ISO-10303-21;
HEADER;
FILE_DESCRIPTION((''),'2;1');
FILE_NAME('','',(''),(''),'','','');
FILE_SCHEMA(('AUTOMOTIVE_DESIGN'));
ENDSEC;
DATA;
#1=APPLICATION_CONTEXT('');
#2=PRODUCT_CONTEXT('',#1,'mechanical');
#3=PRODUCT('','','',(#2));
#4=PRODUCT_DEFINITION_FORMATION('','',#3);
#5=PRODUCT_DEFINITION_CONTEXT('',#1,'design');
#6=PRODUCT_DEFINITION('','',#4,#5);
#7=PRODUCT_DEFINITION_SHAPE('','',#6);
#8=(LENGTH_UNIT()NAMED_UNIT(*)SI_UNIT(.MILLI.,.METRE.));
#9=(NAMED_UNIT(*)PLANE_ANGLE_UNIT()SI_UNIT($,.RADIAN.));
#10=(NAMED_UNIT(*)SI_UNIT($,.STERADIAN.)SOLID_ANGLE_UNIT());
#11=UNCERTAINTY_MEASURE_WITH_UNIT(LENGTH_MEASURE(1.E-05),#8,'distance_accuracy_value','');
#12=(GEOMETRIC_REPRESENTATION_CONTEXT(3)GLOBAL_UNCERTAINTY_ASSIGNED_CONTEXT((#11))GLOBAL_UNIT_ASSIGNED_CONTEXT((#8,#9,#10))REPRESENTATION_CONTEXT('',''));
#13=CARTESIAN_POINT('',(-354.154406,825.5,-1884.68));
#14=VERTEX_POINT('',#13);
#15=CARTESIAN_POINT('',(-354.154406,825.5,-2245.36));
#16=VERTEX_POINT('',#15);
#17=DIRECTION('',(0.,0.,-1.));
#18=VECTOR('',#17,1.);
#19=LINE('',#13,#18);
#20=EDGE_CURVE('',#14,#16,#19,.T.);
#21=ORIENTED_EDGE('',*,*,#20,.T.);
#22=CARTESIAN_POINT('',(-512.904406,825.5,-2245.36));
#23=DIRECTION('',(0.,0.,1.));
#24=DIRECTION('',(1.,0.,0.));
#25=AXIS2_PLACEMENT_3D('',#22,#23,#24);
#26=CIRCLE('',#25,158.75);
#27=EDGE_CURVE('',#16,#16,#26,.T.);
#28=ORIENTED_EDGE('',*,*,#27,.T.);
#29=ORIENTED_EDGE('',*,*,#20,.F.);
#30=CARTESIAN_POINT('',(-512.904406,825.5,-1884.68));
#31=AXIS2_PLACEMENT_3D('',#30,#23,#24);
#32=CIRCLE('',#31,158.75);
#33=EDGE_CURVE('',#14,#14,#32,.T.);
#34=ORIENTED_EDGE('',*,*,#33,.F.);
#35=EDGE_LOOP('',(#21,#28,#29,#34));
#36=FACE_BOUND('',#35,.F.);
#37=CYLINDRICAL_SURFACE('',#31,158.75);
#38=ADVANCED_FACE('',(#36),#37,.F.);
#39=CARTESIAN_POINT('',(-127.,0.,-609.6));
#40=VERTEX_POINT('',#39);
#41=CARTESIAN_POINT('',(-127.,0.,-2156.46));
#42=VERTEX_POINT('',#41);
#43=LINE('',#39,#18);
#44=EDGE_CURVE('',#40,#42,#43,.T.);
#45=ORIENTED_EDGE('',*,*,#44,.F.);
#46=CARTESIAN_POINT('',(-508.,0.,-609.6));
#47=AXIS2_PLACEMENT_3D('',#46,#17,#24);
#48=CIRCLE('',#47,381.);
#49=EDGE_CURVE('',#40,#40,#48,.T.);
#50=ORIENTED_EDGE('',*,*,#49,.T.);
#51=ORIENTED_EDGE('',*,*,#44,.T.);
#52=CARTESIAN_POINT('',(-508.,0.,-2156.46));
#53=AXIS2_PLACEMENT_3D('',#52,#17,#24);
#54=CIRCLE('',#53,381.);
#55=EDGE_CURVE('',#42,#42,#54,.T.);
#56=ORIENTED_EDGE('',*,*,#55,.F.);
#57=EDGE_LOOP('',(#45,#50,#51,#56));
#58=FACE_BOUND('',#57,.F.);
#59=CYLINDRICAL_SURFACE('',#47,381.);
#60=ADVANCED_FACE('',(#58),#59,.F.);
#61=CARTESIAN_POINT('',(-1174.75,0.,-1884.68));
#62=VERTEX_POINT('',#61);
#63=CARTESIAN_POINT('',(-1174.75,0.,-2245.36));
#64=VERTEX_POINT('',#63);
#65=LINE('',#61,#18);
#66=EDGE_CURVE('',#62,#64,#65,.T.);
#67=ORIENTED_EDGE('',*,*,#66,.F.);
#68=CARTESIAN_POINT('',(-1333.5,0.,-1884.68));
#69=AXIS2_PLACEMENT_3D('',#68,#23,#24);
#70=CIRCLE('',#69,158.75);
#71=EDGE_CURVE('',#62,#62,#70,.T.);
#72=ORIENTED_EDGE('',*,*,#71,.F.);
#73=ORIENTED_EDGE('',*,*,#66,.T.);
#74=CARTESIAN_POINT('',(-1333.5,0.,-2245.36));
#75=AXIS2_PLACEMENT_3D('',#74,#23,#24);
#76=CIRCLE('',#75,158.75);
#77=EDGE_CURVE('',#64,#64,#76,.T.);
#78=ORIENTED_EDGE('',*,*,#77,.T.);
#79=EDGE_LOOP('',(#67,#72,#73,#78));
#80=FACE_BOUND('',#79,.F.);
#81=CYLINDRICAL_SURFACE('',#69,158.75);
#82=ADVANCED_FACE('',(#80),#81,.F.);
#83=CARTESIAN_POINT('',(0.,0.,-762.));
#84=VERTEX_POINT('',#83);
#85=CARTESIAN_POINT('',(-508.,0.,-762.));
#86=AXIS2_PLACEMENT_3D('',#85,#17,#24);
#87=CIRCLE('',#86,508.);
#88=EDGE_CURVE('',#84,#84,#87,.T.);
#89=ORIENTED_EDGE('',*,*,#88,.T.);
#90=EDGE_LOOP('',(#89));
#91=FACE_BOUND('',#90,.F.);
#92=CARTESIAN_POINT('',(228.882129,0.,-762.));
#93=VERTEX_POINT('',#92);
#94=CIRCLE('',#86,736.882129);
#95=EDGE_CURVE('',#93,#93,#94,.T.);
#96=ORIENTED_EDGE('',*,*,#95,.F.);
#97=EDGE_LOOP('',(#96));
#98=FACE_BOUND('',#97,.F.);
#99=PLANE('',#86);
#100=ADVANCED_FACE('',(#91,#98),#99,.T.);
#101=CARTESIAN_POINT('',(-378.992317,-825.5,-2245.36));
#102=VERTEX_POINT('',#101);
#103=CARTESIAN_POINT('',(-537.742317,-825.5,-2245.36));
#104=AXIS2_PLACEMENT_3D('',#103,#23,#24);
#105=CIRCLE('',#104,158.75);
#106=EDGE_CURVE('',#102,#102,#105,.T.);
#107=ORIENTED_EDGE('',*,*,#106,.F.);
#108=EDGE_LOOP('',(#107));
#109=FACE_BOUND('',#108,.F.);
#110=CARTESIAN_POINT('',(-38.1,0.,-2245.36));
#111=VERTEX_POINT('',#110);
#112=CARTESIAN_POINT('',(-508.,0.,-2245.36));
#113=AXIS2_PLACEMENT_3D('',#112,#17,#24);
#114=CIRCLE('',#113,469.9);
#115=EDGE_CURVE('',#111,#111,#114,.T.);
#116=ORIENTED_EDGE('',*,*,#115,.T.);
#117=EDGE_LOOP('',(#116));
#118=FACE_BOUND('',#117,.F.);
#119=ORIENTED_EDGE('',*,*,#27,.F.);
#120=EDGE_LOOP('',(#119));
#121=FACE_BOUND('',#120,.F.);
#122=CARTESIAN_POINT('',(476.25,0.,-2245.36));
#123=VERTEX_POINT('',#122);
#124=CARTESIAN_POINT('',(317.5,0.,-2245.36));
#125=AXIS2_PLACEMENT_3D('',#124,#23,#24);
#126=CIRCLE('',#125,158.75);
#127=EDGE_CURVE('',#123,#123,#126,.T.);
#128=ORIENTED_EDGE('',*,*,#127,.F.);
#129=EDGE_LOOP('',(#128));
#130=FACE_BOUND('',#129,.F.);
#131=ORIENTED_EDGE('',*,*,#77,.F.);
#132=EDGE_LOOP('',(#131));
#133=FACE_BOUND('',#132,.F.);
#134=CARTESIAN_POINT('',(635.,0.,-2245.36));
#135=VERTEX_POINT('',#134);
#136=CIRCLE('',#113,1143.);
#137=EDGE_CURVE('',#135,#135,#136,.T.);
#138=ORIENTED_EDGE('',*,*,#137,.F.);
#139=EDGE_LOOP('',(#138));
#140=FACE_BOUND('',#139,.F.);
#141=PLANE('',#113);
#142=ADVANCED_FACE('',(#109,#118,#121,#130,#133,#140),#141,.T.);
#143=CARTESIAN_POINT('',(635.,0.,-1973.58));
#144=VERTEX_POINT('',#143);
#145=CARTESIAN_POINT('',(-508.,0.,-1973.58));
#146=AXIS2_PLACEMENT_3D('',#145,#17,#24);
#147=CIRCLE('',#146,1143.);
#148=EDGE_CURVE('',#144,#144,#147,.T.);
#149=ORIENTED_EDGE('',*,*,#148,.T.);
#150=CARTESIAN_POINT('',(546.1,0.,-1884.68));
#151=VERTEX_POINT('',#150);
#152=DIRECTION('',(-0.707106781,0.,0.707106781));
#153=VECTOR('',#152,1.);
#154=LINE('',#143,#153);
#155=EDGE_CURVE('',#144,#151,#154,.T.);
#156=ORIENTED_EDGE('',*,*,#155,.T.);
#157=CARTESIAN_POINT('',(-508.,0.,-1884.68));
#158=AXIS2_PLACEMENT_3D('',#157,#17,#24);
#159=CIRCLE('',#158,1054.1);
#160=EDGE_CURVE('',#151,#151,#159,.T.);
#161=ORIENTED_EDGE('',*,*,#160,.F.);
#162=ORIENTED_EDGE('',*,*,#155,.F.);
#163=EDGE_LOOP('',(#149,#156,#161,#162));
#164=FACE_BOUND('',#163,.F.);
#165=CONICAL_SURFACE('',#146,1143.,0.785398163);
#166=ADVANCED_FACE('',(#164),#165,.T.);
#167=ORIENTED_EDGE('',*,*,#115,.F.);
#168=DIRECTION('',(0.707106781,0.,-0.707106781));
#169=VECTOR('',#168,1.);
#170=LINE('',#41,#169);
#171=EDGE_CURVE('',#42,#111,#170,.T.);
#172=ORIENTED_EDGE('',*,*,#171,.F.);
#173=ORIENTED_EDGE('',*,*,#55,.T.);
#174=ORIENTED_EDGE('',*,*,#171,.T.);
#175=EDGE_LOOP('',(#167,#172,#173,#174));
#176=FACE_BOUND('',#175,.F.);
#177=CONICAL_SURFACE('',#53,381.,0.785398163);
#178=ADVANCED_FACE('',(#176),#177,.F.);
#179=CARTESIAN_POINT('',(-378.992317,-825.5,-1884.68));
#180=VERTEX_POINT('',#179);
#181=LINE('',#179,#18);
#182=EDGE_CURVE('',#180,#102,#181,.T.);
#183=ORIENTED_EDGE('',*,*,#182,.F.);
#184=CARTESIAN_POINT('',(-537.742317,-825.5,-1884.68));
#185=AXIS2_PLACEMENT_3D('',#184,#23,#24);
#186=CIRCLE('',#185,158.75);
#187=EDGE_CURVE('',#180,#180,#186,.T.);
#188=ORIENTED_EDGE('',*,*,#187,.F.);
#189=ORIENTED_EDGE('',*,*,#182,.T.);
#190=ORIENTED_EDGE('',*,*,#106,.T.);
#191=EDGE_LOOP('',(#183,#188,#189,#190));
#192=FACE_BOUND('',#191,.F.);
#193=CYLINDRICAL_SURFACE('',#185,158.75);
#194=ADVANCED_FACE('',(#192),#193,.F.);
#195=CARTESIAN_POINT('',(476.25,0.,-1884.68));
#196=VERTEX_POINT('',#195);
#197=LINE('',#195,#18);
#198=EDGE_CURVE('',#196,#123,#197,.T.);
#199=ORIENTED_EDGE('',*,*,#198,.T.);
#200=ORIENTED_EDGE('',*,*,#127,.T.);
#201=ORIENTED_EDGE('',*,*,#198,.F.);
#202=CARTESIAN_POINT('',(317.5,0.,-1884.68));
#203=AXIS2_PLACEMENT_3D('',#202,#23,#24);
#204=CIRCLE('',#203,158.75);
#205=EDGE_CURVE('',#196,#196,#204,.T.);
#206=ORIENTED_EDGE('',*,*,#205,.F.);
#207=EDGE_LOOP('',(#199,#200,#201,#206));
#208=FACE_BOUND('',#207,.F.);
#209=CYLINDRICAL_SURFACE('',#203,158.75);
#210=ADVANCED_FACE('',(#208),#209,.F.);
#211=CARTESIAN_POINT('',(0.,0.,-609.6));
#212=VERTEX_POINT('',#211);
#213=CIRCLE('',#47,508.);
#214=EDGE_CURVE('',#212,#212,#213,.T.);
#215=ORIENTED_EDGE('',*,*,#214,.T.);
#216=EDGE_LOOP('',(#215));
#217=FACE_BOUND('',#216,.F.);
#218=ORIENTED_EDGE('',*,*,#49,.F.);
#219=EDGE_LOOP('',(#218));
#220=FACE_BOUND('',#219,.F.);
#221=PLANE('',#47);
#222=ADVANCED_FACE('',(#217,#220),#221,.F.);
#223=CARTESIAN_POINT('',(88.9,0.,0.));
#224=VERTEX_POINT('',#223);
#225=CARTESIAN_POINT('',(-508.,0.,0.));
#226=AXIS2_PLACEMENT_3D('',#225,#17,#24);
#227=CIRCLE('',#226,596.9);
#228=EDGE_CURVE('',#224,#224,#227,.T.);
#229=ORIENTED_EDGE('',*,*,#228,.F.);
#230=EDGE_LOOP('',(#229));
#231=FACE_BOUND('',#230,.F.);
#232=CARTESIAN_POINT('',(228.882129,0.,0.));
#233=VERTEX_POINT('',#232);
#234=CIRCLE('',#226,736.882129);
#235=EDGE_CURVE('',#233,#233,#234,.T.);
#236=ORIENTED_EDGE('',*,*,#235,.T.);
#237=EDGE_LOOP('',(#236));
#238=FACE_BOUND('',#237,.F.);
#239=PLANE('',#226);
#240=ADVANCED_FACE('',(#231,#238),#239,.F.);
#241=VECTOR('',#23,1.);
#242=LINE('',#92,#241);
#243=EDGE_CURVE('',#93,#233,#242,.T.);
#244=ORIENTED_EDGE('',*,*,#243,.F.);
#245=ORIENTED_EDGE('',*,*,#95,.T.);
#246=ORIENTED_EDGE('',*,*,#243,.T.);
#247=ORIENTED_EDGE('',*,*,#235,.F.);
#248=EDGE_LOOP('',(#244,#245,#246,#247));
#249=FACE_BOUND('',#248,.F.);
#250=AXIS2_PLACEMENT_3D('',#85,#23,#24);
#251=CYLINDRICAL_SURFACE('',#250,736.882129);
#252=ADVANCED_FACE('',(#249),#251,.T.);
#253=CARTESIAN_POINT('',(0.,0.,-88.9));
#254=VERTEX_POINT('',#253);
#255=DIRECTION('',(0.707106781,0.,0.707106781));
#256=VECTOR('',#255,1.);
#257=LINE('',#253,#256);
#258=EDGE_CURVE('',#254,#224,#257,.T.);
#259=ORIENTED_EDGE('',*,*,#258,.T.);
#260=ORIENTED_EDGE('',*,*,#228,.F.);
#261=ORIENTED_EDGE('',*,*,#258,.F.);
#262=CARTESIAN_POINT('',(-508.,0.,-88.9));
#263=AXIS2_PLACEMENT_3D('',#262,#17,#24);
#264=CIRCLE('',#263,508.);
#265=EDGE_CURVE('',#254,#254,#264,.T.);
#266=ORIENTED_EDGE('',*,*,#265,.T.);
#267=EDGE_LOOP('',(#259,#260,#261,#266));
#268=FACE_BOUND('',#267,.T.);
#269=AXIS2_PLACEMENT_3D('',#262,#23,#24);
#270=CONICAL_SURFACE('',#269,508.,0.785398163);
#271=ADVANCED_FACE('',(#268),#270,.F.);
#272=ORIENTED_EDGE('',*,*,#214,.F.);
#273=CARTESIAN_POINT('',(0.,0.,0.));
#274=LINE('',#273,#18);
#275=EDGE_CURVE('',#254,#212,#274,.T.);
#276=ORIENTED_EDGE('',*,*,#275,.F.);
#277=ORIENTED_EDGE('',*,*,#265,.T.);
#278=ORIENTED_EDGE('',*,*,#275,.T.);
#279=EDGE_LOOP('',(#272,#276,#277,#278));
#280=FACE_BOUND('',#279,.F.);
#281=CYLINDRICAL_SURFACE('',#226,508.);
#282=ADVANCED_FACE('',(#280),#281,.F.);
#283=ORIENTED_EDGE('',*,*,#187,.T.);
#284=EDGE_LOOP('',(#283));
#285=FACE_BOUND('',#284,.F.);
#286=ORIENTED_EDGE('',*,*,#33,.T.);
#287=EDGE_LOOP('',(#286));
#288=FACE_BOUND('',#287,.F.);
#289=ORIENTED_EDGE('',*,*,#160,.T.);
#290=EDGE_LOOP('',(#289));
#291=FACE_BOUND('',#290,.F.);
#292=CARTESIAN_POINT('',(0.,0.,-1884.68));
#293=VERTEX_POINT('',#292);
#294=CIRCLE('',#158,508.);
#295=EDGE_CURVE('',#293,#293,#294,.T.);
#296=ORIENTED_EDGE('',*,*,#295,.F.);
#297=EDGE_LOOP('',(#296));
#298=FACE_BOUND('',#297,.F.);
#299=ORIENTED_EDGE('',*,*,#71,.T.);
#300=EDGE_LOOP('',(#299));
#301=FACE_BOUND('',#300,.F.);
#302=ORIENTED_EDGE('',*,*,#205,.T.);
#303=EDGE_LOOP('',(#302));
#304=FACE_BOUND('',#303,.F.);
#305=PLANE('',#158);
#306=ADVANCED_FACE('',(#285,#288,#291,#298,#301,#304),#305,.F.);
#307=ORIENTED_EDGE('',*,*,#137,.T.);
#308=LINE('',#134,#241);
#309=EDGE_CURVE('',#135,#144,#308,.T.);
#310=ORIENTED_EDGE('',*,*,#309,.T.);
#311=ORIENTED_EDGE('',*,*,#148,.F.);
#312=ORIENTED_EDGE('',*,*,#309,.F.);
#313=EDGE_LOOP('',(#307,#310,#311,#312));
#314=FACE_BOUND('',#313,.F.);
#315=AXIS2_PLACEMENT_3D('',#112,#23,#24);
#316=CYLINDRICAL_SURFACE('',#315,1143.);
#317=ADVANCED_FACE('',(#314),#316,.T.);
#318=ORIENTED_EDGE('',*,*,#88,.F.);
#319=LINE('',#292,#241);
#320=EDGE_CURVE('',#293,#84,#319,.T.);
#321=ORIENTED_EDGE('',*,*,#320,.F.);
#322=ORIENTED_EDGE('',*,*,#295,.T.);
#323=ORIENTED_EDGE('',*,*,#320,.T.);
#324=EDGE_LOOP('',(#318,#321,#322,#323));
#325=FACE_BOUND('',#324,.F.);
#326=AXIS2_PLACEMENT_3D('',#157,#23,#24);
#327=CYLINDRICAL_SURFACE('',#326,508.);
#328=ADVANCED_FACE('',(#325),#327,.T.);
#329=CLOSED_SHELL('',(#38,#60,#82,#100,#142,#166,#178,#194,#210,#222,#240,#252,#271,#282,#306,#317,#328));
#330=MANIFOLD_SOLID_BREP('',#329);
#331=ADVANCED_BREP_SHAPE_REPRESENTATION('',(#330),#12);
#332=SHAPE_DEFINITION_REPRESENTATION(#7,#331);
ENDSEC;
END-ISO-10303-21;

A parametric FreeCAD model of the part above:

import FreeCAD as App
import Part
import Sketcher
from FreeCAD import Vector
Q = App.Units.Quantity


def edges_at(feature, points):
    """Names of the edges that pass closest to the given points."""
    edges = feature.Shape.Edges
    near = lambda p: min(range(len(edges)), key=lambda i: edges[i].distToShape(Part.Vertex(*p))[0])
    return sorted({f"Edge{near(p) + 1}" for p in points})


def add_polygon(sketch, points):
    """Adds a closed chain of lines whose ends are joined by coincident constraints."""
    first, n = sketch.GeometryCount, len(points)
    for a, b in zip(points, points[1:] + points[:1]):
        sketch.addGeometry(Part.LineSegment(App.Vector(*a, 0), App.Vector(*b, 0)), False)
    for i in range(n):
        sketch.addConstraint(Sketcher.Constraint("Coincident", first + i, 2, first + (i + 1) % n, 1))

doc = App.newDocument("Part")
body = doc.addObject("PartDesign::Body", "Body")

# Sketch on XZ plane
sketch1 = body.newObject("Sketcher::SketchObject", "Sketch")
sketch1.AttachmentSupport = (doc.getObject("XZ_Plane"), [""])
sketch1.MapMode = "FlatFace"
add_polygon(sketch1, [(229, 0), (0, 0), (0, -610), (-127, -610), (-127, -2245), (635, -2245), (635, -1885), (0, -1885), (0, -762), (229, -762)])  # lines 0-9
sketch1.addGeometry(Part.LineSegment(Vector(-508, 0, 0), Vector(-508, -2245, 0)), True)  # axis
sketch1.addConstraint(Sketcher.Constraint("Horizontal", 0))
sketch1.addConstraint(Sketcher.Constraint("Vertical", 1))
sketch1.addConstraint(Sketcher.Constraint("Horizontal", 2))
sketch1.addConstraint(Sketcher.Constraint("Vertical", 3))
sketch1.addConstraint(Sketcher.Constraint("Horizontal", 4))
sketch1.addConstraint(Sketcher.Constraint("Vertical", 5))
sketch1.addConstraint(Sketcher.Constraint("Horizontal", 6))
sketch1.addConstraint(Sketcher.Constraint("Vertical", 7))
sketch1.addConstraint(Sketcher.Constraint("Horizontal", 8))
sketch1.addConstraint(Sketcher.Constraint("Vertical", 9))
sketch1.addConstraint(Sketcher.Constraint("Vertical", 10))
sketch1.addConstraint(Sketcher.Constraint("Coincident", 0, 2, -1, 1))
sketch1.addConstraint(Sketcher.Constraint("PointOnObject", 6, 2, -2))
sketch1.addConstraint(Sketcher.Constraint("PointOnObject", 10, 1, -1))
sketch1.addConstraint(Sketcher.Constraint("Horizontal", 4, 2, 10, 2))
sketch1.addConstraint(Sketcher.Constraint("Equal", 4, 9))
sketch1.addConstraint(Sketcher.Constraint("DistanceX", 2, 2, 2, 1, Q("5 in")))
sketch1.addConstraint(Sketcher.Constraint("DistanceX", 4, 1, 4, 2, Q("30 in")))
sketch1.addConstraint(Sketcher.Constraint("DistanceY", 1, 2, 1, 1, Q("24 in")))
sketch1.addConstraint(Sketcher.Constraint("DistanceY", 3, 2, 3, 1, Q("64.4 in")))
sketch1.addConstraint(Sketcher.Constraint("DistanceY", 5, 1, 5, 2, Q("14.2 in")))
sketch1.addConstraint(Sketcher.Constraint("DistanceX", 10, 1, -1, 1, Q("20 in")))
sketch1.addConstraint(Sketcher.Constraint("DistanceX", 0, 2, 0, 1, 228.882129))
revolution = body.newObject("PartDesign::Revolution", "Revolution")
revolution.Profile = sketch1
revolution.ReferenceAxis = (sketch1, ["Axis0"])
revolution.Angle = 360

# Sketch on XY plane
sketch2 = body.newObject("Sketcher::SketchObject", "Sketch001")
sketch2.AttachmentSupport = (doc.getObject("XY_Plane"), [""])
sketch2.MapMode = "FlatFace"
sketch2.AttachmentOffset = App.Placement(Vector(0, 0, -74.2 * 25.4), App.Rotation())
sketch2.addGeometry(Part.Circle(Vector(-1334, 0, 0), Vector(0, 0, 1), 159), False)
sketch2.addConstraint(Sketcher.Constraint("PointOnObject", 0, 3, -1))
sketch2.addConstraint(Sketcher.Constraint("Diameter", 0, Q("12.5 in")))
sketch2.addConstraint(Sketcher.Constraint("DistanceX", 0, 3, -1, 1, Q("52.5 in")))
pocket1 = body.newObject("PartDesign::Pocket", "Pocket")
pocket1.Profile = sketch2
pocket1.Length = Q("14.2 in")

# Sketch on XY plane
sketch3 = body.newObject("Sketcher::SketchObject", "Sketch002")
sketch3.AttachmentSupport = (doc.getObject("XY_Plane"), [""])
sketch3.MapMode = "FlatFace"
sketch3.AttachmentOffset = App.Placement(Vector(0, 0, -74.2 * 25.4), App.Rotation())
sketch3.addGeometry(Part.Circle(Vector(-538, -826, 0), Vector(0, 0, 1), 159), False)
sketch3.addConstraint(Sketcher.Constraint("Diameter", 0, Q("12.5 in")))
sketch3.addConstraint(Sketcher.Constraint("DistanceY", 0, 3, -1, 1, Q("32.5 in")))
sketch3.addConstraint(Sketcher.Constraint("DistanceX", 0, 3, -1, 1, 537.742317))
pocket2 = body.newObject("PartDesign::Pocket", "Pocket001")
pocket2.Profile = sketch3
pocket2.Length = Q("14.2 in")

# Sketch on XY plane
sketch4 = body.newObject("Sketcher::SketchObject", "Sketch003")
sketch4.AttachmentSupport = (doc.getObject("XY_Plane"), [""])
sketch4.MapMode = "FlatFace"
sketch4.AttachmentOffset = App.Placement(Vector(0, 0, -74.2 * 25.4), App.Rotation())
sketch4.addGeometry(Part.Circle(Vector(318, 0, 0), Vector(0, 0, 1), 159), False)
sketch4.addConstraint(Sketcher.Constraint("PointOnObject", 0, 3, -1))
sketch4.addConstraint(Sketcher.Constraint("Diameter", 0, Q("12.5 in")))
sketch4.addConstraint(Sketcher.Constraint("DistanceX", -1, 1, 0, 3, Q("12.5 in")))
pocket3 = body.newObject("PartDesign::Pocket", "Pocket002")
pocket3.Profile = sketch4
pocket3.Length = Q("14.2 in")

# Sketch on XY plane
sketch5 = body.newObject("Sketcher::SketchObject", "Sketch004")
sketch5.AttachmentSupport = (doc.getObject("XY_Plane"), [""])
sketch5.MapMode = "FlatFace"
sketch5.AttachmentOffset = App.Placement(Vector(0, 0, -74.2 * 25.4), App.Rotation())
sketch5.addGeometry(Part.Circle(Vector(-513, 826, 0), Vector(0, 0, 1), 159), False)
sketch5.addConstraint(Sketcher.Constraint("Diameter", 0, Q("12.5 in")))
sketch5.addConstraint(Sketcher.Constraint("DistanceY", -1, 1, 0, 3, Q("32.5 in")))
sketch5.addConstraint(Sketcher.Constraint("DistanceX", 0, 3, -1, 1, 512.904406))
pocket4 = body.newObject("PartDesign::Pocket", "Pocket003")
pocket4.Profile = sketch5
pocket4.Length = Q("14.2 in")
doc.recompute()

chamfer = body.newObject("PartDesign::Chamfer", "Chamfer")
chamfer.Base = (pocket4, edges_at(pocket4, [(-889, 0, -2245.36)]))
chamfer.Size = Q("3.5 in")
doc.recompute()

chamfer2 = body.newObject("PartDesign::Chamfer", "Chamfer001")
chamfer2.Base = (chamfer, edges_at(chamfer, [(-1016, 0, 0)]))
chamfer2.Size = Q("3.5 in")
doc.recompute()

chamfer3 = body.newObject("PartDesign::Chamfer", "Chamfer002")
chamfer3.Base = (chamfer2, edges_at(chamfer2, [(-1651, 0, -1884.68)]))
chamfer3.Size = Q("3.5 in")

doc.recompute()
